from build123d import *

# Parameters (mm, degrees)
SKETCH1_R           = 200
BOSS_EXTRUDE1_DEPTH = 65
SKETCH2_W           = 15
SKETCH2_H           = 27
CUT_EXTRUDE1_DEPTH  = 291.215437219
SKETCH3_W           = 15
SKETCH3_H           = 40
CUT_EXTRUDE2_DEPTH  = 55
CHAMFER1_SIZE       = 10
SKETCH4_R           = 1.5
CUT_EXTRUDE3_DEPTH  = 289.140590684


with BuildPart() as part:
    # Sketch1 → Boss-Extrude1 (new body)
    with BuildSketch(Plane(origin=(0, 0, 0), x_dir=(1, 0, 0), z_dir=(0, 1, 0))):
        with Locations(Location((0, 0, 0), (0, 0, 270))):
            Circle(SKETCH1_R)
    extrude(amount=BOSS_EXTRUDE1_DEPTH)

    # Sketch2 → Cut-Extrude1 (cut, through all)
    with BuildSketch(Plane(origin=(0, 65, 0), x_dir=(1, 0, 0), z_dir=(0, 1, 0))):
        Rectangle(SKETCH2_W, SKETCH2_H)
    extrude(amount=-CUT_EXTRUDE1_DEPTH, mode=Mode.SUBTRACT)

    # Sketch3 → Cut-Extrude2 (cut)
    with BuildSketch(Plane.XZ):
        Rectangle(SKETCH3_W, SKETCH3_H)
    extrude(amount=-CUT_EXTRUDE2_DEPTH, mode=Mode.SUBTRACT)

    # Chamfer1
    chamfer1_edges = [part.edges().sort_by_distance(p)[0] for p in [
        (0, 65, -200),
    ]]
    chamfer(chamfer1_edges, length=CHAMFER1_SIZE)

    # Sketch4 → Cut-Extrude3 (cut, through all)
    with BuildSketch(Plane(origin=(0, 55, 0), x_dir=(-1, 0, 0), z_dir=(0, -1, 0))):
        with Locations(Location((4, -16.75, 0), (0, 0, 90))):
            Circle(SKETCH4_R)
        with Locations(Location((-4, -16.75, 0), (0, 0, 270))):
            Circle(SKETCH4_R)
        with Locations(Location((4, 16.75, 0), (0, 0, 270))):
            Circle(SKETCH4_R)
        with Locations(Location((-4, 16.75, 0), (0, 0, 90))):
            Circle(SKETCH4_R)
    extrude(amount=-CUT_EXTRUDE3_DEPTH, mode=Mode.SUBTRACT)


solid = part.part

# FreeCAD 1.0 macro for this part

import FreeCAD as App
import Part
import Sketcher
from FreeCAD import Vector


def edges_at(feature, points):
    """Names of the edges that pass closest to the given points."""
    edges = feature.Shape.Edges
    near = lambda p: min(range(len(edges)), key=lambda i: edges[i].distToShape(Part.Vertex(*p))[0])
    return sorted({f"Edge{near(p) + 1}" for p in points})


def add_polygon(sketch, points):
    """Adds a closed chain of lines whose ends are joined by coincident constraints."""
    first, n = sketch.GeometryCount, len(points)
    for a, b in zip(points, points[1:] + points[:1]):
        sketch.addGeometry(Part.LineSegment(App.Vector(*a, 0), App.Vector(*b, 0)), False)
    for i in range(n):
        sketch.addConstraint(Sketcher.Constraint("Coincident", first + i, 2, first + (i + 1) % n, 1))

doc = App.newDocument("Part")
body = doc.addObject("PartDesign::Body", "Body")

# Sketch on XZ plane
sketch1 = doc.addObject("Sketcher::SketchObject", "Sketch")
body.addObject(sketch1)
sketch1.AttachmentSupport = (doc.XZ_Plane, [""])
sketch1.MapMode = "FlatFace"
sketch1.addGeometry(Part.Circle(Vector(0, 0, 0), Vector(0, 0, 1), 200), False)
sketch1.addConstraint([
    Sketcher.Constraint("Coincident", 0, 3, -1, 1),
    Sketcher.Constraint("Diameter", 0, 400.0),
])
pad1 = doc.addObject("PartDesign::Pad", "Pad")
body.addObject(pad1)
pad1.Profile = sketch1
pad1.Length = 65
pad1.Reversed = True

# Sketch on XZ plane
sketch2 = doc.addObject("Sketcher::SketchObject", "Sketch001")
body.addObject(sketch2)
sketch2.AttachmentSupport = (doc.XZ_Plane, [""])
sketch2.MapMode = "FlatFace"
sketch2.AttachmentOffset = App.Placement(Vector(0, 0, -65), App.Rotation())
add_polygon(sketch2, [(-8, -14), (-8, 14), (8, 14), (8, -14)])  # lines 0-3
sketch2.addConstraint([
    Sketcher.Constraint("Vertical", 0),
    Sketcher.Constraint("Horizontal", 1),
    Sketcher.Constraint("Vertical", 2),
    Sketcher.Constraint("Horizontal", 3),
    Sketcher.Constraint("Symmetric", 0, 2, 2, 2, -1, 1),
    Sketcher.Constraint("DistanceX", 1, 1, 1, 2, 15.0),
    Sketcher.Constraint("DistanceY", 0, 1, 0, 2, 27.0),
])
pocket1 = doc.addObject("PartDesign::Pocket", "Pocket")
body.addObject(pocket1)
pocket1.Profile = sketch2
pocket1.Type = "ThroughAll"
pocket1.Reversed = True

# Sketch on XZ plane
sketch3 = doc.addObject("Sketcher::SketchObject", "Sketch002")
body.addObject(sketch3)
sketch3.AttachmentSupport = (doc.XZ_Plane, [""])
sketch3.MapMode = "FlatFace"
add_polygon(sketch3, [(-8, 20), (-8, -20), (8, -20), (8, 20)])  # lines 0-3
sketch3.addConstraint([
    Sketcher.Constraint("Vertical", 0),
    Sketcher.Constraint("Horizontal", 1),
    Sketcher.Constraint("Vertical", 2),
    Sketcher.Constraint("Horizontal", 3),
    Sketcher.Constraint("Symmetric", 0, 2, 2, 2, -1, 1),
    Sketcher.Constraint("DistanceX", 1, 1, 1, 2, 15.0),
    Sketcher.Constraint("DistanceY", 0, 2, 0, 1, 40.0),
])
pocket2 = doc.addObject("PartDesign::Pocket", "Pocket001")
body.addObject(pocket2)
pocket2.Profile = sketch3
pocket2.Length = 55
doc.recompute()

chamfer = doc.addObject("PartDesign::Chamfer", "Chamfer")
body.addObject(chamfer)
chamfer.Base = (pocket2, edges_at(pocket2, [(0, 65, -200)]))
chamfer.Size = 10

# Sketch on XZ plane
sketch4 = doc.addObject("Sketcher::SketchObject", "Sketch003")
body.addObject(sketch4)
sketch4.AttachmentSupport = (doc.XZ_Plane, [""])
sketch4.MapMode = "FlatFace"
sketch4.AttachmentOffset = App.Placement(Vector(0, 0, -55), App.Rotation())
sketch4.addGeometry([
    Part.Circle(Vector(-4, 16.8, 0), Vector(0, 0, 1), 1.5),
    Part.Circle(Vector(4, 16.8, 0), Vector(0, 0, 1), 1.5),
    Part.Circle(Vector(-4, -16.8, 0), Vector(0, 0, 1), 1.5),
    Part.Circle(Vector(4, -16.8, 0), Vector(0, 0, 1), 1.5),
], False)
sketch4.addConstraint([
    Sketcher.Constraint("Equal", 0, 1),
    Sketcher.Constraint("Equal", 1, 2),
    Sketcher.Constraint("Equal", 2, 3),
    Sketcher.Constraint("Symmetric", 1, 3, 2, 3, -1, 1),
    Sketcher.Constraint("Symmetric", 0, 3, 3, 3, -1, 1),
    Sketcher.Constraint("Symmetric", 0, 3, 1, 3, -2),
    Sketcher.Constraint("Diameter", 0, 3.0),
    Sketcher.Constraint("DistanceX", 0, 3, -1, 1, 4.0),
    Sketcher.Constraint("DistanceY", 2, 3, 0, 3, 33.5),
])
pocket3 = doc.addObject("PartDesign::Pocket", "Pocket002")
body.addObject(pocket3)
pocket3.Profile = sketch4
pocket3.Type = "ThroughAll"

doc.recompute()
